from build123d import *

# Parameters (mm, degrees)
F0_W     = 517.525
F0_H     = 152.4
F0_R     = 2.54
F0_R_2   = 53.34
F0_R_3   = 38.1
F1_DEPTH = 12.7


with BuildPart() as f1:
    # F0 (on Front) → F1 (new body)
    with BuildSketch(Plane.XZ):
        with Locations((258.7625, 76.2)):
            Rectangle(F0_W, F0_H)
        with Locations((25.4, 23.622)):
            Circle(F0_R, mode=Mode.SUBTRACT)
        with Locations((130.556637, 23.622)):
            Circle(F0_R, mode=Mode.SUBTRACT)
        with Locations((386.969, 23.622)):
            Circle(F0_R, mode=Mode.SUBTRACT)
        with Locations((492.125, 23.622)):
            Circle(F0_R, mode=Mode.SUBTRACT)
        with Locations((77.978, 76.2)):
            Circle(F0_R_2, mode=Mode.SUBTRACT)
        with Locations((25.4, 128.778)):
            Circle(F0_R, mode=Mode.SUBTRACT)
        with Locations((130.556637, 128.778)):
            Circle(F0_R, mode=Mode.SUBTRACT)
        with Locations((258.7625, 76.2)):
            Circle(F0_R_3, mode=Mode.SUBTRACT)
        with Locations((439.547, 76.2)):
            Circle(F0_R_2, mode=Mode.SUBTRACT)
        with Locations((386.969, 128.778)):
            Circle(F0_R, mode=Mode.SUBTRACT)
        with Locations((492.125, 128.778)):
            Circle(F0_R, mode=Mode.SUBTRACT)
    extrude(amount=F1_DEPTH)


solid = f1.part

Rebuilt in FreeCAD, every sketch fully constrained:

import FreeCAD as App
import Part
import Sketcher

V = App.Vector
Q = App.Units.Quantity


def add_polygon(sketch, points):
    """Adds a closed chain of lines whose ends are joined by coincident constraints."""
    first, n = sketch.GeometryCount, len(points)
    for a, b in zip(points, points[1:] + points[:1]):
        sketch.addGeometry(Part.LineSegment(App.Vector(*a, 0), App.Vector(*b, 0)), False)
    for i in range(n):
        sketch.addConstraint(Sketcher.Constraint("Coincident", first + i, 2, first + (i + 1) % n, 1))

doc = App.newDocument("Part")
body = doc.addObject("PartDesign::Body", "Body")

sketch1 = body.newObject("Sketcher::SketchObject", "Sketch")
sketch1.AttachmentSupport = (doc.getObject("XZ_Plane"), [""])
sketch1.MapMode = "FlatFace"
add_polygon(sketch1, [(0, 152.4), (0, 0), (517.5, 0), (517.5, 152.4)])
sketch1.addGeometry(Part.Circle(V(25.4, 23.6, 0), V(0, 0, 1), 2.5), False)
sketch1.addGeometry(Part.Circle(V(130.6, 23.6, 0), V(0, 0, 1), 2.5), False)
sketch1.addGeometry(Part.Circle(V(387, 23.6, 0), V(0, 0, 1), 2.5), False)
sketch1.addGeometry(Part.Circle(V(492.1, 23.6, 0), V(0, 0, 1), 2.5), False)
sketch1.addGeometry(Part.Circle(V(78, 76.2, 0), V(0, 0, 1), 53.3), False)
sketch1.addGeometry(Part.Circle(V(25.4, 128.8, 0), V(0, 0, 1), 2.5), False)
sketch1.addGeometry(Part.Circle(V(130.6, 128.8, 0), V(0, 0, 1), 2.5), False)
sketch1.addGeometry(Part.Circle(V(258.8, 76.2, 0), V(0, 0, 1), 38.1), False)
sketch1.addGeometry(Part.Circle(V(439.5, 76.2, 0), V(0, 0, 1), 53.3), False)
sketch1.addGeometry(Part.Circle(V(387, 128.8, 0), V(0, 0, 1), 2.5), False)
sketch1.addGeometry(Part.Circle(V(492.1, 128.8, 0), V(0, 0, 1), 2.5), False)
sketch1.addConstraint(Sketcher.Constraint("Vertical", 0))
sketch1.addConstraint(Sketcher.Constraint("Horizontal", 1))
sketch1.addConstraint(Sketcher.Constraint("Vertical", 2))
sketch1.addConstraint(Sketcher.Constraint("Horizontal", 3))
sketch1.addConstraint(Sketcher.Constraint("Coincident", 0, 2, -1, 1))
sketch1.addConstraint(Sketcher.Constraint("Equal", 4, 5))
sketch1.addConstraint(Sketcher.Constraint("Equal", 5, 6))
sketch1.addConstraint(Sketcher.Constraint("Equal", 6, 7))
sketch1.addConstraint(Sketcher.Constraint("Equal", 7, 9))
sketch1.addConstraint(Sketcher.Constraint("Equal", 9, 10))
sketch1.addConstraint(Sketcher.Constraint("Equal", 8, 12))
sketch1.addConstraint(Sketcher.Constraint("Equal", 10, 13))
sketch1.addConstraint(Sketcher.Constraint("Equal", 13, 14))
sketch1.addConstraint(Sketcher.Constraint("Horizontal", 4, 3, 5, 3))
sketch1.addConstraint(Sketcher.Constraint("Horizontal", 5, 3, 6, 3))
sketch1.addConstraint(Sketcher.Constraint("Horizontal", 6, 3, 7, 3))
sketch1.addConstraint(Sketcher.Constraint("Horizontal", 9, 3, 10, 3))
sketch1.addConstraint(Sketcher.Constraint("Horizontal", 8, 3, 11, 3))
sketch1.addConstraint(Sketcher.Constraint("Horizontal", 11, 3, 12, 3))
sketch1.addConstraint(Sketcher.Constraint("Horizontal", 10, 3, 13, 3))
sketch1.addConstraint(Sketcher.Constraint("Horizontal", 13, 3, 14, 3))
sketch1.addConstraint(Sketcher.Constraint("Vertical", 4, 3, 9, 3))
sketch1.addConstraint(Sketcher.Constraint("Vertical", 5, 3, 10, 3))
sketch1.addConstraint(Sketcher.Constraint("Vertical", 6, 3, 13, 3))
sketch1.addConstraint(Sketcher.Constraint("Vertical", 7, 3, 14, 3))
sketch1.addConstraint(Sketcher.Constraint("Diameter", 11, Q("3 in")))
sketch1.addConstraint(Sketcher.Constraint("Diameter", 4, Q("0.2 in")))
sketch1.addConstraint(Sketcher.Constraint("Diameter", 8, Q("4.2 in")))
sketch1.addConstraint(Sketcher.Constraint("DistanceY", 0, 2, 0, 1, Q("6 in")))
sketch1.addConstraint(Sketcher.Constraint("DistanceX", -1, 1, 4, 3, Q("1 in")))
sketch1.addConstraint(Sketcher.Constraint("DistanceY", -1, 1, 8, 3, Q("3 in")))
sketch1.addConstraint(Sketcher.Constraint("DistanceX", 7, 3, 1, 2, Q("1 in")))
sketch1.addConstraint(Sketcher.Constraint("DistanceX", 1, 1, 1, 2, Q("20.375 in")))
sketch1.addConstraint(Sketcher.Constraint("DistanceY", -1, 1, 4, 3, Q("0.93 in")))
sketch1.addConstraint(Sketcher.Constraint("DistanceX", -1, 1, 8, 3, Q("3.07 in")))
sketch1.addConstraint(Sketcher.Constraint("DistanceY", -1, 1, 9, 3, Q("5.07 in")))
sketch1.addConstraint(Sketcher.Constraint("DistanceX", 6, 3, 7, 3, Q("4.14 in")))
sketch1.addConstraint(Sketcher.Constraint("DistanceX", 12, 3, 7, 3, Q("2.07 in")))
sketch1.addConstraint(Sketcher.Constraint("DistanceX", -1, 1, 11, 3, Q("10.1875 in")))
sketch1.addConstraint(Sketcher.Constraint("DistanceX", -1, 1, 5, 3, 130.556637))
pad1 = body.newObject("PartDesign::Pad", "Pad")
pad1.Profile = sketch1
pad1.Length = Q("0.5 in")

doc.recompute()
